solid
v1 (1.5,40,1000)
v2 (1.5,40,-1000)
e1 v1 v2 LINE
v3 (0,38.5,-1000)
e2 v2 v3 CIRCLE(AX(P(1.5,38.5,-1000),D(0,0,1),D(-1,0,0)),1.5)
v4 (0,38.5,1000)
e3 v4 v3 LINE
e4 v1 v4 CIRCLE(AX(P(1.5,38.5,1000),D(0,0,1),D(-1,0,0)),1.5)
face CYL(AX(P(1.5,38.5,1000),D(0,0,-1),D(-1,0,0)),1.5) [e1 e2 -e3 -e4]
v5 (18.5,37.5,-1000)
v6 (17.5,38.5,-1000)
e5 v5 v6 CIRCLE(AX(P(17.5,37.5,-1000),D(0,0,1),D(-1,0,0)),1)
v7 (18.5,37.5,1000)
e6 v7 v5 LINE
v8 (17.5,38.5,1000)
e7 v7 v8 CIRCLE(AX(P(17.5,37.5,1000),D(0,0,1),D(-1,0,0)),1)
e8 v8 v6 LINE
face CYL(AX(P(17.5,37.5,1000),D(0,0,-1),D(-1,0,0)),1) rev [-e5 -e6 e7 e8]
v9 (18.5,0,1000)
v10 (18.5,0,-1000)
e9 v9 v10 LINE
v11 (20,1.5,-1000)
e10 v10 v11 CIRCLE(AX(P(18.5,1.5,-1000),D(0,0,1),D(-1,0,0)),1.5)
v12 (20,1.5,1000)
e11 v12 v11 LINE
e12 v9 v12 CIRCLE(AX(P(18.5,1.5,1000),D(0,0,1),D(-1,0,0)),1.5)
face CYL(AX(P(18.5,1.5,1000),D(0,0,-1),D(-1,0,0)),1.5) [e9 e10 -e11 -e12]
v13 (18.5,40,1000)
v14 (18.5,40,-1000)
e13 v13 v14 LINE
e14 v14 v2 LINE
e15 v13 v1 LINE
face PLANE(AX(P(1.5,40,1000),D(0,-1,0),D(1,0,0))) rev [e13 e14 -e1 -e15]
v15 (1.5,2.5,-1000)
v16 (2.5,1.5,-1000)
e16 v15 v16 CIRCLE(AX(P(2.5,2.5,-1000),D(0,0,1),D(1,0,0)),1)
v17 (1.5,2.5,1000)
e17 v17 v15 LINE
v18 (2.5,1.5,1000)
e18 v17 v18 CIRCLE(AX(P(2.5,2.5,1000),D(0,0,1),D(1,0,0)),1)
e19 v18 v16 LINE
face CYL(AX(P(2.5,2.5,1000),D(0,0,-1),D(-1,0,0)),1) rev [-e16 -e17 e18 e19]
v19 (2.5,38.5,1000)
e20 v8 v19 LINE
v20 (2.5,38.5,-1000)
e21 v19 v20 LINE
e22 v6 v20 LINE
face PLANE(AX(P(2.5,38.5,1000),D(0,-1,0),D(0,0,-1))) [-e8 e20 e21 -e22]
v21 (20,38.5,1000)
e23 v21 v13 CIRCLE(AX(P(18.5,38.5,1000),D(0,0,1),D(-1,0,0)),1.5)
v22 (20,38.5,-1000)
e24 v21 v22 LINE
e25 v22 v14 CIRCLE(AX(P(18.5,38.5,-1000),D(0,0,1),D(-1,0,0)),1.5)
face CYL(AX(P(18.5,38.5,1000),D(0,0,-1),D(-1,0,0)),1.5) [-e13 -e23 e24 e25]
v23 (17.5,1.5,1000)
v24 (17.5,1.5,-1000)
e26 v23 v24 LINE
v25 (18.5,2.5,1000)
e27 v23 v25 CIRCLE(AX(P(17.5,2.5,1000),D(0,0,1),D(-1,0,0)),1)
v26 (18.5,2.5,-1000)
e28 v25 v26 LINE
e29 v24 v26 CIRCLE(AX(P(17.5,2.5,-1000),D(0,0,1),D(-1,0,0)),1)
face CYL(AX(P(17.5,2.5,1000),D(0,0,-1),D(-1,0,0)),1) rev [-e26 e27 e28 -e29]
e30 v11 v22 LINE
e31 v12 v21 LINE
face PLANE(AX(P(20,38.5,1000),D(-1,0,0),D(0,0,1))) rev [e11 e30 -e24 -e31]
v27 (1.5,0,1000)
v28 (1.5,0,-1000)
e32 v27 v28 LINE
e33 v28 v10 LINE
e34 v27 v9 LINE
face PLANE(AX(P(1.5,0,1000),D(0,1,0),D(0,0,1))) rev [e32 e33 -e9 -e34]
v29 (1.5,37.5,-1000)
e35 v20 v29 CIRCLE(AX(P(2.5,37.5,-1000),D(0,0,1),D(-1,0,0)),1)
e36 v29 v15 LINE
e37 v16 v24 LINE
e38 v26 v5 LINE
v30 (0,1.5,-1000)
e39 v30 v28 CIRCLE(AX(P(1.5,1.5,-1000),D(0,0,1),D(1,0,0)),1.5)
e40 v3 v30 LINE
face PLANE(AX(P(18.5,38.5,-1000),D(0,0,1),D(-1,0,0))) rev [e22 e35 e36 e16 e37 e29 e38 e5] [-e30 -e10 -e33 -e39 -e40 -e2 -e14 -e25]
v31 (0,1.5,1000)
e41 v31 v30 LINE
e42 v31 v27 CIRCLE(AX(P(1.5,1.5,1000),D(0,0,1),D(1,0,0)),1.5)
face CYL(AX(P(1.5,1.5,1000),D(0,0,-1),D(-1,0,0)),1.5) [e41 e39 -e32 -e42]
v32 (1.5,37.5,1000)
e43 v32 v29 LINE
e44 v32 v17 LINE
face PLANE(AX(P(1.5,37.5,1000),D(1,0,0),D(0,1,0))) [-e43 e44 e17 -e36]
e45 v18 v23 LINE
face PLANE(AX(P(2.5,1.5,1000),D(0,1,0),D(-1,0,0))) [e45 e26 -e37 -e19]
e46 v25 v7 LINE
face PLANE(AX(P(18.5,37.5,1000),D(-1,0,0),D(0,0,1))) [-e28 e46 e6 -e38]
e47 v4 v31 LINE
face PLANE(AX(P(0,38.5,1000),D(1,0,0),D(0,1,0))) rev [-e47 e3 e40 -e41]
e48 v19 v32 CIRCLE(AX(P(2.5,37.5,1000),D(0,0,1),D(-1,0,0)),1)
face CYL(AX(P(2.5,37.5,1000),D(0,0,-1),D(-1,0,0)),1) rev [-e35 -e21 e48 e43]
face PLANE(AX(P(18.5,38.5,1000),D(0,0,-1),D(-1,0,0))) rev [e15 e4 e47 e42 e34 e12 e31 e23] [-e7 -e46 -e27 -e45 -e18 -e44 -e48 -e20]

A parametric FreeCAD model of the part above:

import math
import FreeCAD as App
import Part
import Sketcher

V = App.Vector
Q = App.Units.Quantity

doc = App.newDocument("Part")
body = doc.addObject("PartDesign::Body", "Body")

sketch1 = body.newObject("Sketcher::SketchObject", "Sketch")
sketch1.AttachmentSupport = (doc.getObject("XY_Plane"), [""])
sketch1.MapMode = "FlatFace"
sketch1.addGeometry([
    Part.LineSegment(V(0, 38.5, 0), V(0, 1.5, 0)),
    Part.ArcOfCircle(Part.Circle(V(1.5, 1.5, 0), V(0, 0, 1), 1.5), math.radians(180), math.radians(270)),
    Part.LineSegment(V(1.5, 0, 0), V(18.5, 0, 0)),
    Part.ArcOfCircle(Part.Circle(V(18.5, 1.5, 0), V(0, 0, 1), 1.5), math.radians(-90), math.radians(0)),
    Part.LineSegment(V(20, 1.5, 0), V(20, 38.5, 0)),
    Part.ArcOfCircle(Part.Circle(V(18.5, 38.5, 0), V(0, 0, 1), 1.5), math.radians(0), math.radians(90)),
    Part.LineSegment(V(18.5, 40, 0), V(1.5, 40, 0)),
    Part.ArcOfCircle(Part.Circle(V(1.5, 38.5, 0), V(0, 0, 1), 1.5), math.radians(90), math.radians(180)),
    Part.LineSegment(V(1.5, 2.5, 0), V(1.5, 37.5, 0)),
    Part.ArcOfCircle(Part.Circle(V(2.5, 37.5, 0), V(0, 0, 1), 1), math.radians(90), math.radians(180)),
    Part.LineSegment(V(2.5, 38.5, 0), V(17.5, 38.5, 0)),
    Part.ArcOfCircle(Part.Circle(V(17.5, 37.5, 0), V(0, 0, 1), 1), math.radians(0), math.radians(90)),
    Part.LineSegment(V(18.5, 37.5, 0), V(18.5, 2.5, 0)),
    Part.ArcOfCircle(Part.Circle(V(17.5, 2.5, 0), V(0, 0, 1), 1), math.radians(-90), math.radians(0)),
    Part.LineSegment(V(17.5, 1.5, 0), V(2.5, 1.5, 0)),
    Part.ArcOfCircle(Part.Circle(V(2.5, 2.5, 0), V(0, 0, 1), 1), math.radians(-180), math.radians(-90)),
], False)
sketch1.addConstraint([
    Sketcher.Constraint("Tangent", 0, 2, 1, 1),
    Sketcher.Constraint("Tangent", 1, 2, 2, 1),
    Sketcher.Constraint("Tangent", 2, 2, 3, 1),
    Sketcher.Constraint("Tangent", 3, 2, 4, 1),
    Sketcher.Constraint("Tangent", 4, 2, 5, 1),
    Sketcher.Constraint("Tangent", 5, 2, 6, 1),
    Sketcher.Constraint("Tangent", 6, 2, 7, 1),
    Sketcher.Constraint("Tangent", 7, 2, 0, 1),
    Sketcher.Constraint("Tangent", 8, 2, 9, 2),
    Sketcher.Constraint("Tangent", 9, 1, 10, 1),
    Sketcher.Constraint("Tangent", 10, 2, 11, 2),
    Sketcher.Constraint("Tangent", 11, 1, 12, 1),
    Sketcher.Constraint("Tangent", 12, 2, 13, 2),
    Sketcher.Constraint("Tangent", 13, 1, 14, 1),
    Sketcher.Constraint("Tangent", 14, 2, 15, 2),
    Sketcher.Constraint("Tangent", 15, 1, 8, 1),
    Sketcher.Constraint("Vertical", 0),
    Sketcher.Constraint("Horizontal", 2),
    Sketcher.Constraint("Vertical", 4),
    Sketcher.Constraint("Horizontal", 6),
    Sketcher.Constraint("Vertical", 8),
    Sketcher.Constraint("Horizontal", 10),
    Sketcher.Constraint("Vertical", 12),
    Sketcher.Constraint("Horizontal", 14),
    Sketcher.Constraint("Equal", 1, 3),
    Sketcher.Constraint("Equal", 3, 5),
    Sketcher.Constraint("Equal", 5, 7),
    Sketcher.Constraint("Equal", 9, 11),
    Sketcher.Constraint("Equal", 11, 13),
    Sketcher.Constraint("Equal", 13, 15),
    Sketcher.Constraint("PointOnObject", 0, 2, -2),
    Sketcher.Constraint("PointOnObject", 1, 2, -1),
    Sketcher.Constraint("Horizontal", 7, 2, 9, 1),
    Sketcher.Constraint("Horizontal", 3, 2, 13, 1),
    Sketcher.Constraint("Vertical", 6, 2, 8, 2),
    Sketcher.Constraint("Vertical", 5, 2, 11, 1),
    Sketcher.Constraint("Radius", 9, Q("1 mm")),
    Sketcher.Constraint("Radius", 1, Q("1.5 mm")),
    Sketcher.Constraint("DistanceX", 2, 1, 2, 2, Q("17 mm")),
    Sketcher.Constraint("DistanceY", 0, 2, 0, 1, Q("37 mm")),
])
pad1 = body.newObject("PartDesign::Pad", "Pad")
pad1.Profile = sketch1
pad1.Length = 1000
doc.recompute()

mirrored = body.newObject("PartDesign::Mirrored", "Mirrored")
mirrored.Originals = [pad1]
mirrored.MirrorPlane = (doc.getObject("XY_Plane"), [""])
body.Tip = mirrored

doc.recompute()
